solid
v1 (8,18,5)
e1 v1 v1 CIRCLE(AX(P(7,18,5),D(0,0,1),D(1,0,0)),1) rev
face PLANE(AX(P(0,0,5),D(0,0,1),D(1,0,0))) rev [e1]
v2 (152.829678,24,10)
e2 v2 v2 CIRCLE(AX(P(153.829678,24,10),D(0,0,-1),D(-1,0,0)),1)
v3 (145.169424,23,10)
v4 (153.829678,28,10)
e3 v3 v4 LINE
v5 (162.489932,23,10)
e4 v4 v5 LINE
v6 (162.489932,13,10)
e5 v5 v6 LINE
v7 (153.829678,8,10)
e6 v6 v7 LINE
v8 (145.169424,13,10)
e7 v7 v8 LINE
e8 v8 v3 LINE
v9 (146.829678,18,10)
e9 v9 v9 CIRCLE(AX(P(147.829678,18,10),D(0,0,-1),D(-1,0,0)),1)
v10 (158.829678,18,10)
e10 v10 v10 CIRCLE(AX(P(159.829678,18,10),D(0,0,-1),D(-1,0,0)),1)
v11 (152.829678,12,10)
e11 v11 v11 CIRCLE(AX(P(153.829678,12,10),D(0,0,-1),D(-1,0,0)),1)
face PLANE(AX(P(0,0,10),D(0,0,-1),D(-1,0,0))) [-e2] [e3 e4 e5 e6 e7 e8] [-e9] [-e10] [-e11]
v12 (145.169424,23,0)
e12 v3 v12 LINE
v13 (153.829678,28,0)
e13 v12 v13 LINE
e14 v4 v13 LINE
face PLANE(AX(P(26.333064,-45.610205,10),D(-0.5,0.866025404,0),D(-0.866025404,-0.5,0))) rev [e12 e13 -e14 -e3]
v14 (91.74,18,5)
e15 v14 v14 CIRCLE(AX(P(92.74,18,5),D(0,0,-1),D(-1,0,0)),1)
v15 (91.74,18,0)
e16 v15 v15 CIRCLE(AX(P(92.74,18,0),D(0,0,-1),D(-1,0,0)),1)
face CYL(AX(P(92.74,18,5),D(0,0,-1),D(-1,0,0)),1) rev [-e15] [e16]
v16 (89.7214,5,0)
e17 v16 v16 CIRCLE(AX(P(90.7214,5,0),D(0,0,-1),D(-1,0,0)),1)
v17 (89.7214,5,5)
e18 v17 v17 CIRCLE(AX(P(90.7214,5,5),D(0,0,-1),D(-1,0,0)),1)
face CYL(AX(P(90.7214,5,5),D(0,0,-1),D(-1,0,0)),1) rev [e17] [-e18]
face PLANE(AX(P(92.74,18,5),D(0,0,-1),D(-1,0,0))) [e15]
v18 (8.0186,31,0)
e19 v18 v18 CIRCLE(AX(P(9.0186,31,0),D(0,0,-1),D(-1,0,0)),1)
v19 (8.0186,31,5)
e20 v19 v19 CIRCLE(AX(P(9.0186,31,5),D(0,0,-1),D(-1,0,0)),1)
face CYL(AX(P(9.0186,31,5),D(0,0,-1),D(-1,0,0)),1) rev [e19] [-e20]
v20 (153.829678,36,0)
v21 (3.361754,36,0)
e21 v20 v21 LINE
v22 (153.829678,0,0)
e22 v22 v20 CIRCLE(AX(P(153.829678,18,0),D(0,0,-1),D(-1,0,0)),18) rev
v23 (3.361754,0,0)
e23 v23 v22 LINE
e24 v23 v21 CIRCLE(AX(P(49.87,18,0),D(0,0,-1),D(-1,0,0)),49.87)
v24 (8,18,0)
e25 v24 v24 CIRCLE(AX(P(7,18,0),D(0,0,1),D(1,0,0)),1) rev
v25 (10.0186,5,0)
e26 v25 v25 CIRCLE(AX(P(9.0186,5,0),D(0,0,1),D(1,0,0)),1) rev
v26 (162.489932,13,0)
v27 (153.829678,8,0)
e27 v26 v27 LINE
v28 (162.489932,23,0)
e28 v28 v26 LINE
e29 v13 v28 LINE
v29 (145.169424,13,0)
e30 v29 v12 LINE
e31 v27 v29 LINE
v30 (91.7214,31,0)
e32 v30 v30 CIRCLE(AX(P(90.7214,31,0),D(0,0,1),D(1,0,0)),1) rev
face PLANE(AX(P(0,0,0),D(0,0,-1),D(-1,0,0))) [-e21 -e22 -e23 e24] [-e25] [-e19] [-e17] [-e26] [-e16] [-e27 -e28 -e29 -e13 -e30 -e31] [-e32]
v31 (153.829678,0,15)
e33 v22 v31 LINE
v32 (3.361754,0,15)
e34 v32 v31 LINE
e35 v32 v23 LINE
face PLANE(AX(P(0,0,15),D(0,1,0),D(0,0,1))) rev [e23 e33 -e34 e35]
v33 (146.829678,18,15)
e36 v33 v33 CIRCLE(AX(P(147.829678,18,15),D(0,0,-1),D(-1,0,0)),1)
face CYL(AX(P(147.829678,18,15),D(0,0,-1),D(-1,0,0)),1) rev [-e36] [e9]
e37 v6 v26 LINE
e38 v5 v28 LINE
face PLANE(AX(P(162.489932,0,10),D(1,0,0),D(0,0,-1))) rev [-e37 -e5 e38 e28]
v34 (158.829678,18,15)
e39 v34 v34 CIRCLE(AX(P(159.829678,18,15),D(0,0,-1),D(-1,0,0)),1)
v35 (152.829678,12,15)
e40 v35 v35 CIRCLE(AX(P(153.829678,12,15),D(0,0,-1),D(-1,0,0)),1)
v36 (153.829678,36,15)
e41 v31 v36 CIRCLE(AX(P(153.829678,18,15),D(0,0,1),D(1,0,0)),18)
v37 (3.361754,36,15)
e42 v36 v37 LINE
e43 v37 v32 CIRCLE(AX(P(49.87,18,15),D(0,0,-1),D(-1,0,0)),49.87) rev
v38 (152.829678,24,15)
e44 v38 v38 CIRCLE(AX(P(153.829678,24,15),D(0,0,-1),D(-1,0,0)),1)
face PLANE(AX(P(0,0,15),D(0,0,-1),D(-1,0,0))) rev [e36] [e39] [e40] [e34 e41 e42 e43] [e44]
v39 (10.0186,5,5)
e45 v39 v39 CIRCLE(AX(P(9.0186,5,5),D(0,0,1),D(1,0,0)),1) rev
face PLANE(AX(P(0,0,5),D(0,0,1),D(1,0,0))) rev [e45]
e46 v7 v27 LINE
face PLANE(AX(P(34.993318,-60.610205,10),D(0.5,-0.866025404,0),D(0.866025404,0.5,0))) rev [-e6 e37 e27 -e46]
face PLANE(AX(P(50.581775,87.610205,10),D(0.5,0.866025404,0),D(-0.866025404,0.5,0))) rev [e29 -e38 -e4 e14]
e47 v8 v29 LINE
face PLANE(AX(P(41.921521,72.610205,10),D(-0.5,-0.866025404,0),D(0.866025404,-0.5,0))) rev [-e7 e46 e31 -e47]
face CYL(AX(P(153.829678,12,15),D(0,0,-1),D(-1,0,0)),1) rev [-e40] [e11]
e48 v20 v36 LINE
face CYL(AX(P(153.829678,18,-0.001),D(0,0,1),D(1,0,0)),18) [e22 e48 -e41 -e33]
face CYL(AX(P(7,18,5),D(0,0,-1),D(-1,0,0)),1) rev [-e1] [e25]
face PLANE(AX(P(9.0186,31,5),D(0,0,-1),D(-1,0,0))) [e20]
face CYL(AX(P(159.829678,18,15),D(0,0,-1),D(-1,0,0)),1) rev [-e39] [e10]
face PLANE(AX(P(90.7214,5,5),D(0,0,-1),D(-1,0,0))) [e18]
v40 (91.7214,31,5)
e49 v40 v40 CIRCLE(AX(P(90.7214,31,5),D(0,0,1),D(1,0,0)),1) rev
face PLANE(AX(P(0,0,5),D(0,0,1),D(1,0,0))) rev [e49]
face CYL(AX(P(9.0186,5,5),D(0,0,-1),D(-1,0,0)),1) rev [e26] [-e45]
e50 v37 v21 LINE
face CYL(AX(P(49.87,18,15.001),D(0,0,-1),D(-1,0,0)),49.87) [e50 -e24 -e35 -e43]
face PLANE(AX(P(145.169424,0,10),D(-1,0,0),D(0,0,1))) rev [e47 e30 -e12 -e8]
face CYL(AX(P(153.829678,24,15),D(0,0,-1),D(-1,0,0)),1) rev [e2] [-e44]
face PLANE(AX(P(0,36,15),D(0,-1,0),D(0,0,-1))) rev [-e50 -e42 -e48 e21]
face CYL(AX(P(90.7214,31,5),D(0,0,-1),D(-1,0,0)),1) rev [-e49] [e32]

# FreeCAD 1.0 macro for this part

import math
import FreeCAD as App
import Part
import Sketcher
from FreeCAD import Vector
Q = App.Units.Quantity

doc = App.newDocument("Part")
body = doc.addObject("PartDesign::Body", "Body")

sketch1 = body.newObject("Sketcher::SketchObject", "Sketch")
sketch1.AttachmentSupport = (doc.getObject("XY_Plane"), [""])
sketch1.MapMode = "FlatFace"
sketch1.addGeometry([
    Part.LineSegment(Vector(0, 36, 0), Vector(0, 0, 0)),
    Part.LineSegment(Vector(0, 0, 0), Vector(300, 0, 0)),
    Part.LineSegment(Vector(300, 0, 0), Vector(300, 36, 0)),
    Part.LineSegment(Vector(300, 36, 0), Vector(0, 36, 0)),
], False)
sketch1.addConstraint([
    Sketcher.Constraint("Coincident", 0, 2, 1, 1),
    Sketcher.Constraint("Coincident", 1, 2, 2, 1),
    Sketcher.Constraint("Coincident", 2, 2, 3, 1),
    Sketcher.Constraint("Coincident", 3, 2, 0, 1),
    Sketcher.Constraint("Vertical", 0),
    Sketcher.Constraint("Horizontal", 1),
    Sketcher.Constraint("Vertical", 2),
    Sketcher.Constraint("Horizontal", 3),
    Sketcher.Constraint("Coincident", 0, 2, -1, 1),
    Sketcher.Constraint("DistanceX", 1, 1, 1, 2, Q("300 mm")),
    Sketcher.Constraint("DistanceY", 0, 2, 0, 1, Q("36 mm")),
])
pad1 = body.newObject("PartDesign::Pad", "Pad")
pad1.Profile = sketch1
pad1.Length = 15

sketch2 = body.newObject("Sketcher::SketchObject", "Sketch001")
sketch2.AttachmentSupport = (doc.getObject("XY_Plane"), [""])
sketch2.MapMode = "FlatFace"
sketch2.addGeometry([
    Part.Circle(Vector(9.0186, 5, 0), Vector(0, 0, 1), 1),
    Part.Circle(Vector(7, 18, 0), Vector(0, 0, 1), 1),
    Part.Circle(Vector(9.0186, 31, 0), Vector(0, 0, 1), 1),
    Part.Circle(Vector(90.7214, 5, 0), Vector(0, 0, 1), 1),
    Part.Circle(Vector(90.7214, 31, 0), Vector(0, 0, 1), 1),
    Part.Circle(Vector(92.74, 18, 0), Vector(0, 0, 1), 1),
], False)
sketch2.addConstraint([
    Sketcher.Constraint("Equal", 0, 1),
    Sketcher.Constraint("Equal", 1, 2),
    Sketcher.Constraint("Equal", 2, 3),
    Sketcher.Constraint("Equal", 3, 4),
    Sketcher.Constraint("Equal", 4, 5),
    Sketcher.Constraint("Horizontal", 0, 3, 3, 3),
    Sketcher.Constraint("Horizontal", 2, 3, 4, 3),
    Sketcher.Constraint("Horizontal", 1, 3, 5, 3),
    Sketcher.Constraint("Vertical", 0, 3, 2, 3),
    Sketcher.Constraint("Vertical", 3, 3, 4, 3),
    Sketcher.Constraint("Diameter", 0, Q("2 mm")),
    Sketcher.Constraint("DistanceY", -1, 1, 0, 3, Q("5 mm")),
    Sketcher.Constraint("DistanceX", -1, 1, 1, 3, Q("7 mm")),
    Sketcher.Constraint("DistanceY", -1, 1, 1, 3, Q("18 mm")),
    Sketcher.Constraint("DistanceY", -1, 1, 2, 3, Q("31 mm")),
    Sketcher.Constraint("DistanceX", -1, 1, 5, 3, Q("92.74 mm")),
    Sketcher.Constraint("DistanceX", -1, 1, 0, 3, Q("9.0186 mm")),
    Sketcher.Constraint("DistanceX", -1, 1, 3, 3, Q("90.7214 mm")),
])
pocket1 = body.newObject("PartDesign::Pocket", "Pocket")
pocket1.Profile = sketch2
pocket1.Length = 5
pocket1.Reversed = True

sketch3 = body.newObject("Sketcher::SketchObject", "Sketch002")
sketch3.AttachmentSupport = (doc.getObject("XY_Plane"), [""])
sketch3.MapMode = "FlatFace"
sketch3.addGeometry([
    Part.LineSegment(Vector(145.169424, 13, 0), Vector(145.169424, 23, 0)),
    Part.LineSegment(Vector(145.169424, 23, 0), Vector(153.829678, 28, 0)),
    Part.LineSegment(Vector(153.829678, 28, 0), Vector(162.489932, 23, 0)),
    Part.LineSegment(Vector(162.489932, 23, 0), Vector(162.489932, 13, 0)),
    Part.LineSegment(Vector(162.489932, 13, 0), Vector(153.829678, 8, 0)),
    Part.LineSegment(Vector(153.829678, 8, 0), Vector(145.169424, 13, 0)),
], False)
sketch3.addConstraint([
    Sketcher.Constraint("Coincident", 0, 2, 1, 1),
    Sketcher.Constraint("Coincident", 1, 2, 2, 1),
    Sketcher.Constraint("Coincident", 2, 2, 3, 1),
    Sketcher.Constraint("Coincident", 3, 2, 4, 1),
    Sketcher.Constraint("Coincident", 4, 2, 5, 1),
    Sketcher.Constraint("Coincident", 5, 2, 0, 1),
    Sketcher.Constraint("Vertical", 0),
    Sketcher.Constraint("Vertical", 3),
    Sketcher.Constraint("Parallel", 1, 4),
    Sketcher.Constraint("Parallel", 2, 5),
    Sketcher.Constraint("Horizontal", 0, 2, 2, 2),
    Sketcher.Constraint("Horizontal", 3, 2, 5, 2),
    Sketcher.Constraint("Vertical", 1, 2, 4, 2),
    Sketcher.Constraint("DistanceY", 0, 1, 0, 2, Q("10 mm")),
    Sketcher.Constraint("Angle", 1, Q("30 deg")),
    Sketcher.Constraint("Distance", 1, Q("10 mm")),
    Sketcher.Constraint("DistanceY", -1, 1, 0, 2, Q("23 mm")),
    Sketcher.Constraint("DistanceX", -1, 1, 1, 2, Q("153.829678 mm")),
])
pocket2 = body.newObject("PartDesign::Pocket", "Pocket001")
pocket2.Profile = sketch3
pocket2.Length = 10
pocket2.Reversed = True

sketch4 = body.newObject("Sketcher::SketchObject", "Sketch003")
sketch4.AttachmentSupport = (doc.getObject("XY_Plane"), [""])
sketch4.MapMode = "FlatFace"
sketch4.AttachmentOffset = App.Placement(Vector(0, 0, 15), App.Rotation())
sketch4.addGeometry([
    Part.LineSegment(Vector(300, 36, 0), Vector(153.829678, 36, 0)),
    Part.ArcOfCircle(Part.Circle(Vector(153.829678, 18, 0), Vector(0, 0, 1), 18), math.radians(-90), math.radians(90)),
    Part.LineSegment(Vector(153.829678, 0, 0), Vector(300, 0, 0)),
    Part.LineSegment(Vector(300, 0, 0), Vector(300, 36, 0)),
], False)
sketch4.addConstraint([
    Sketcher.Constraint("Tangent", 0, 2, 1, 2),
    Sketcher.Constraint("Tangent", 1, 1, 2, 1),
    Sketcher.Constraint("Coincident", 2, 2, 3, 1),
    Sketcher.Constraint("Coincident", 3, 2, 0, 1),
    Sketcher.Constraint("Horizontal", 0),
    Sketcher.Constraint("Horizontal", 2),
    Sketcher.Constraint("Vertical", 3),
    Sketcher.Constraint("PointOnObject", 1, 1, -1),
    Sketcher.Constraint("Radius", 1, Q("18 mm")),
    Sketcher.Constraint("DistanceX", -1, 1, 2, 2, Q("300 mm")),
    Sketcher.Constraint("DistanceX", 0, 2, 0, 1, Q("146.170322 mm")),
])
pocket3 = body.newObject("PartDesign::Pocket", "Pocket002")
pocket3.Profile = sketch4
pocket3.Type = "UpToFirst"

sketch5 = body.newObject("Sketcher::SketchObject", "Sketch004")
sketch5.AttachmentSupport = (doc.getObject("XY_Plane"), [""])
sketch5.MapMode = "FlatFace"
sketch5.AttachmentOffset = App.Placement(Vector(0, 0, 10), App.Rotation())
sketch5.addGeometry([
    Part.Circle(Vector(153.829678, 12, 0), Vector(0, 0, 1), 1),
    Part.Circle(Vector(159.829678, 18, 0), Vector(0, 0, 1), 1),
    Part.Circle(Vector(153.829678, 24, 0), Vector(0, 0, 1), 1),
    Part.Circle(Vector(147.829678, 18, 0), Vector(0, 0, 1), 1),
], False)
sketch5.addConstraint([
    Sketcher.Constraint("Equal", 0, 1),
    Sketcher.Constraint("Equal", 1, 2),
    Sketcher.Constraint("Equal", 2, 3),
    Sketcher.Constraint("Horizontal", 1, 3, 3, 3),
    Sketcher.Constraint("Vertical", 0, 3, 2, 3),
    Sketcher.Constraint("Diameter", 0, Q("2 mm")),
    Sketcher.Constraint("DistanceY", -1, 1, 0, 3, Q("12 mm")),
    Sketcher.Constraint("DistanceY", -1, 1, 1, 3, Q("18 mm")),
    Sketcher.Constraint("DistanceY", -1, 1, 2, 3, Q("24 mm")),
    Sketcher.Constraint("DistanceX", 0, 3, 1, 3, Q("6 mm")),
    Sketcher.Constraint("DistanceX", 3, 3, 0, 3, Q("6 mm")),
    Sketcher.Constraint("DistanceX", -1, 1, 0, 3, Q("153.829678 mm")),
])
pocket4 = body.newObject("PartDesign::Pocket", "Pocket003")
pocket4.Profile = sketch5
pocket4.Length = 5
pocket4.Reversed = True

sketch6 = body.newObject("Sketcher::SketchObject", "Sketch005")
sketch6.AttachmentSupport = (doc.getObject("XY_Plane"), [""])
sketch6.MapMode = "FlatFace"
sketch6.addGeometry([
    Part.ArcOfCircle(Part.Circle(Vector(49.87, 18, 0), Vector(0, 0, 1), 49.87), math.radians(180), math.radians(201.15784)),
    Part.LineSegment(Vector(3.361754, 0, 0), Vector(0, 0, 0)),
    Part.LineSegment(Vector(0, 0, 0), Vector(0, 18, 0)),
], False)
sketch6.addConstraint([
    Sketcher.Constraint("Coincident", 0, 2, 1, 1),
    Sketcher.Constraint("Coincident", 1, 2, 2, 1),
    Sketcher.Constraint("Tangent", 2, 2, 0, 1),
    Sketcher.Constraint("Horizontal", 1),
    Sketcher.Constraint("Vertical", 2),
    Sketcher.Constraint("Coincident", 1, 2, -1, 1),
    Sketcher.Constraint("DistanceY", 2, 1, 2, 2, Q("18 mm")),
    Sketcher.Constraint("Radius", 0, Q("49.87 mm")),
])
pocket5 = body.newObject("PartDesign::Pocket", "Pocket004")
pocket5.Profile = sketch6
pocket5.Type = "UpToFirst"
pocket5.Reversed = True

sketch7 = body.newObject("Sketcher::SketchObject", "Sketch006")
sketch7.AttachmentSupport = (doc.getObject("XY_Plane"), [""])
sketch7.MapMode = "FlatFace"
sketch7.addGeometry([
    Part.ArcOfCircle(Part.Circle(Vector(49.87, 18, 0), Vector(0, 0, 1), 49.87), math.radians(158.84216), math.radians(180)),
    Part.LineSegment(Vector(0, 18, 0), Vector(0, 36, 0)),
    Part.LineSegment(Vector(0, 36, 0), Vector(3.361754, 36, 0)),
], False)
sketch7.addConstraint([
    Sketcher.Constraint("Tangent", 0, 2, 1, 1),
    Sketcher.Constraint("Coincident", 1, 2, 2, 1),
    Sketcher.Constraint("Coincident", 2, 2, 0, 1),
    Sketcher.Constraint("Vertical", 1),
    Sketcher.Constraint("Horizontal", 2),
    Sketcher.Constraint("PointOnObject", 0, 2, -2),
    Sketcher.Constraint("DistanceY", 1, 1, 1, 2, Q("18 mm")),
    Sketcher.Constraint("Radius", 0, Q("49.87 mm")),
    Sketcher.Constraint("DistanceY", -1, 1, 0, 3, Q("18 mm")),
])
pocket6 = body.newObject("PartDesign::Pocket", "Pocket005")
pocket6.Profile = sketch7
pocket6.Type = "UpToFirst"
pocket6.Reversed = True

doc.recompute()
